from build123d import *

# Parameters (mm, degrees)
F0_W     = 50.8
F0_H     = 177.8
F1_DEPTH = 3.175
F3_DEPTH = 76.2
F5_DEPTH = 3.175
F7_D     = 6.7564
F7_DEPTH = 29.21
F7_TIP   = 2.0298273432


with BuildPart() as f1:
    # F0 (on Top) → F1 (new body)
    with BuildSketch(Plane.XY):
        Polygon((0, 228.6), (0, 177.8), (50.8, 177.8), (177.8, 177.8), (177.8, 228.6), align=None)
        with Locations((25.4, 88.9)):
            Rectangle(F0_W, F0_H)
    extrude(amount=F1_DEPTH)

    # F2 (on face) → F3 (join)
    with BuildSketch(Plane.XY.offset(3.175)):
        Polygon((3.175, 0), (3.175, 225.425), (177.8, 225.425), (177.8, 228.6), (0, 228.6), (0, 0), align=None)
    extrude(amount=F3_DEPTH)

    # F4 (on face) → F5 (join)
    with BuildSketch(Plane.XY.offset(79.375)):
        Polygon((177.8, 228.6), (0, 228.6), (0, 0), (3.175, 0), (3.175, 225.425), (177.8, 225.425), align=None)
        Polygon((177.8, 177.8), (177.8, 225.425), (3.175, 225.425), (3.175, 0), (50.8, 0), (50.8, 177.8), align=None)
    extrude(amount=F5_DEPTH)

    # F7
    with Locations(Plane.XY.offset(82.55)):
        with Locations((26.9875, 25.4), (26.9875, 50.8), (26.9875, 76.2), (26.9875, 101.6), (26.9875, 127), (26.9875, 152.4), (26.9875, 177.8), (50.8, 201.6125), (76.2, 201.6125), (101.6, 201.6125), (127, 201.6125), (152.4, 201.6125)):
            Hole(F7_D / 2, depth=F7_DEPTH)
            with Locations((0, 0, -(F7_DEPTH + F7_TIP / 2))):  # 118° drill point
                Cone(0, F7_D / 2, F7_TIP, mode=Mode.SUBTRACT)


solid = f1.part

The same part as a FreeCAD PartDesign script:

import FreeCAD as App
import Part
import Sketcher

V = App.Vector
Q = App.Units.Quantity


def add_polygon(sketch, points):
    """Adds a closed chain of lines whose ends are joined by coincident constraints."""
    first, n = sketch.GeometryCount, len(points)
    for a, b in zip(points, points[1:] + points[:1]):
        sketch.addGeometry(Part.LineSegment(App.Vector(*a, 0), App.Vector(*b, 0)), False)
    for i in range(n):
        sketch.addConstraint(Sketcher.Constraint("Coincident", first + i, 2, first + (i + 1) % n, 1))

doc = App.newDocument("Part")
body = doc.addObject("PartDesign::Body", "Body")

# Sketch on XY plane
sketch1 = body.newObject("Sketcher::SketchObject", "Sketch")
sketch1.AttachmentSupport = (doc.getObject("XY_Plane"), [""])
sketch1.MapMode = "FlatFace"
add_polygon(sketch1, [(0, 229), (0, 0), (51, 0), (51, 178), (178, 178), (178, 229)])  # lines 0-5
sketch1.addConstraint([
    Sketcher.Constraint("Vertical", 0),
    Sketcher.Constraint("Horizontal", 1),
    Sketcher.Constraint("Vertical", 2),
    Sketcher.Constraint("Horizontal", 3),
    Sketcher.Constraint("Vertical", 4),
    Sketcher.Constraint("Horizontal", 5),
    Sketcher.Constraint("Coincident", 0, 2, -1, 1),
    Sketcher.Constraint("Equal", 5, 2),
    Sketcher.Constraint("Equal", 1, 4),
    Sketcher.Constraint("DistanceX", 1, 1, 1, 2, Q("2 in")),
    Sketcher.Constraint("DistanceX", 3, 1, 3, 2, Q("5 in")),
])
pad1 = body.newObject("PartDesign::Pad", "Pad")
pad1.Profile = sketch1
pad1.Length = Q("0.125 in")

# Sketch on XY plane
sketch2 = body.newObject("Sketcher::SketchObject", "Sketch001")
sketch2.AttachmentSupport = (doc.getObject("XY_Plane"), [""])
sketch2.MapMode = "FlatFace"
sketch2.AttachmentOffset = App.Placement(V(0, 0, 0.125 * 25.4), App.Rotation())
add_polygon(sketch2, [(3.2, 0), (3.2, 225.4), (177.8, 225.4), (177.8, 228.6), (0, 228.6), (0, 0)])  # lines 0-5
sketch2.addConstraint([
    Sketcher.Constraint("Vertical", 0),
    Sketcher.Constraint("Horizontal", 1),
    Sketcher.Constraint("Vertical", 2),
    Sketcher.Constraint("Horizontal", 3),
    Sketcher.Constraint("Vertical", 4),
    Sketcher.Constraint("Horizontal", 5),
    Sketcher.Constraint("Coincident", 4, 2, -1, 1),
    Sketcher.Constraint("Equal", 5, 2),
    Sketcher.Constraint("DistanceX", 3, 2, 3, 1, Q("7 in")),
    Sketcher.Constraint("DistanceY", 4, 2, 4, 1, Q("9 in")),
    Sketcher.Constraint("DistanceX", 1, 1, 1, 2, Q("6.875 in")),
])
pad2 = body.newObject("PartDesign::Pad", "Pad001")
pad2.Profile = sketch2
pad2.Length = Q("3 in")

# Sketch on XY plane
sketch3 = body.newObject("Sketcher::SketchObject", "Sketch002")
sketch3.AttachmentSupport = (doc.getObject("XY_Plane"), [""])
sketch3.MapMode = "FlatFace"
sketch3.AttachmentOffset = App.Placement(V(0, 0, 3.125 * 25.4), App.Rotation())
add_polygon(sketch3, [(178, 229), (0, 229), (0, 0), (51, 0), (51, 178), (178, 178)])  # lines 0-5
sketch3.addConstraint([
    Sketcher.Constraint("Horizontal", 0),
    Sketcher.Constraint("Vertical", 1),
    Sketcher.Constraint("Horizontal", 2),
    Sketcher.Constraint("Vertical", 3),
    Sketcher.Constraint("Horizontal", 4),
    Sketcher.Constraint("Vertical", 5),
    Sketcher.Constraint("Coincident", 1, 2, -1, 1),
    Sketcher.Constraint("Equal", 0, 3),
    Sketcher.Constraint("Equal", 2, 5),
    Sketcher.Constraint("DistanceX", 0, 2, 0, 1, Q("7 in")),
    Sketcher.Constraint("DistanceX", 2, 1, 2, 2, Q("2 in")),
])
pad3 = body.newObject("PartDesign::Pad", "Pad002")
pad3.Profile = sketch3
pad3.Length = Q("0.125 in")

# Sketch on XY plane
sketch4 = body.newObject("Sketcher::SketchObject", "Sketch003")
sketch4.AttachmentSupport = (doc.getObject("XY_Plane"), [""])
sketch4.MapMode = "FlatFace"
sketch4.AttachmentOffset = App.Placement(V(0, 0, 3.25 * 25.4), App.Rotation())
sketch4.addGeometry([
    Part.Circle(V(27, 25.4, 0), V(0, 0, 1), 3.4),  # 0
    Part.Circle(V(27, 50.8, 0), V(0, 0, 1), 3.4),  # 1
    Part.Circle(V(27, 76.2, 0), V(0, 0, 1), 3.4),  # 2
    Part.Circle(V(27, 101.6, 0), V(0, 0, 1), 3.4),  # 3
    Part.Circle(V(27, 127, 0), V(0, 0, 1), 3.4),  # 4
    Part.Circle(V(27, 152.4, 0), V(0, 0, 1), 3.4),  # 5
    Part.Circle(V(27, 177.8, 0), V(0, 0, 1), 3.4),  # 6
    Part.Circle(V(50.8, 201.6, 0), V(0, 0, 1), 3.4),  # 7
    Part.Circle(V(76.2, 201.6, 0), V(0, 0, 1), 3.4),  # 8
    Part.Circle(V(101.6, 201.6, 0), V(0, 0, 1), 3.4),  # 9
    Part.Circle(V(127, 201.6, 0), V(0, 0, 1), 3.4),  # 10
    Part.Circle(V(152.4, 201.6, 0), V(0, 0, 1), 3.4),  # 11
], False)
sketch4.addConstraint([
    Sketcher.Constraint("Equal", 0, 1),
    Sketcher.Constraint("Equal", 1, 2),
    Sketcher.Constraint("Equal", 2, 3),
    Sketcher.Constraint("Equal", 3, 4),
    Sketcher.Constraint("Equal", 4, 5),
    Sketcher.Constraint("Equal", 5, 6),
    Sketcher.Constraint("Equal", 6, 7),
    Sketcher.Constraint("Equal", 7, 8),
    Sketcher.Constraint("Equal", 8, 9),
    Sketcher.Constraint("Equal", 9, 10),
    Sketcher.Constraint("Equal", 10, 11),
    Sketcher.Constraint("Horizontal", 7, 3, 8, 3),
    Sketcher.Constraint("Horizontal", 8, 3, 9, 3),
    Sketcher.Constraint("Horizontal", 9, 3, 10, 3),
    Sketcher.Constraint("Horizontal", 10, 3, 11, 3),
    Sketcher.Constraint("Vertical", 0, 3, 1, 3),
    Sketcher.Constraint("Vertical", 1, 3, 2, 3),
    Sketcher.Constraint("Vertical", 2, 3, 3, 3),
    Sketcher.Constraint("Vertical", 3, 3, 4, 3),
    Sketcher.Constraint("Vertical", 4, 3, 5, 3),
    Sketcher.Constraint("Vertical", 5, 3, 6, 3),
    Sketcher.Constraint("Diameter", 0, Q("0.266 in")),
    Sketcher.Constraint("DistanceY", -1, 1, 0, 3, Q("1 in")),
    Sketcher.Constraint("DistanceY", -1, 1, 1, 3, Q("2 in")),
    Sketcher.Constraint("DistanceY", -1, 1, 2, 3, Q("3 in")),
    Sketcher.Constraint("DistanceY", -1, 1, 3, 3, Q("4 in")),
    Sketcher.Constraint("DistanceY", -1, 1, 4, 3, Q("5 in")),
    Sketcher.Constraint("DistanceY", -1, 1, 5, 3, Q("6 in")),
    Sketcher.Constraint("DistanceY", -1, 1, 6, 3, Q("7 in")),
    Sketcher.Constraint("DistanceX", -1, 1, 7, 3, Q("2 in")),
    Sketcher.Constraint("DistanceX", -1, 1, 8, 3, Q("3 in")),
    Sketcher.Constraint("DistanceX", -1, 1, 9, 3, Q("4 in")),
    Sketcher.Constraint("DistanceX", -1, 1, 10, 3, Q("5 in")),
    Sketcher.Constraint("DistanceX", -1, 1, 11, 3, Q("6 in")),
    Sketcher.Constraint("DistanceX", -1, 1, 0, 3, Q("1.0625 in")),
    Sketcher.Constraint("DistanceY", -1, 1, 7, 3, Q("7.9375 in")),
])
doc.recompute()
hole = body.newObject("PartDesign::Hole", "Hole")
hole.Profile = sketch4
hole.ThreadType = "None"
hole.Diameter = Q("0.266 in")
hole.DepthType = "Dimension"
hole.Depth = Q("1.15 in")
hole.DrillPoint = "Angled"
hole.DrillPointAngle = 118

doc.recompute()
